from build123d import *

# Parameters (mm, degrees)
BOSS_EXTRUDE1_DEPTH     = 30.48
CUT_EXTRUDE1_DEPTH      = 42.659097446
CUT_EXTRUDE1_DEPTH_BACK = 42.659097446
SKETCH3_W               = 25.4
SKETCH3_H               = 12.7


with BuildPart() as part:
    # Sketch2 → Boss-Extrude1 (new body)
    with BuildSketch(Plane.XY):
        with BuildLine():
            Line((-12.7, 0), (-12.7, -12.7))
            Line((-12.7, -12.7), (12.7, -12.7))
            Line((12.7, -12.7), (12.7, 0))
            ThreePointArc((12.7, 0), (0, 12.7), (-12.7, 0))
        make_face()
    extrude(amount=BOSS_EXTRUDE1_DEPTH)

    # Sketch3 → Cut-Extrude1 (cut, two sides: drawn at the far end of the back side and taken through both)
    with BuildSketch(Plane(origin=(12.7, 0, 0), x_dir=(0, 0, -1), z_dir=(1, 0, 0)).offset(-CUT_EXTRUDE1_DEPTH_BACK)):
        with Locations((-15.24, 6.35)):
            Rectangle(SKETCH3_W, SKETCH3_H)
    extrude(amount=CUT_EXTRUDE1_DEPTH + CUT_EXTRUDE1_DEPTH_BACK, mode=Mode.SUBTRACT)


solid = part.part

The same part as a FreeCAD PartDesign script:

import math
import FreeCAD as App
import Part
import Sketcher

V = App.Vector
Q = App.Units.Quantity

doc = App.newDocument("Part")
body = doc.addObject("PartDesign::Body", "Body")

# Sketch on XY plane
sketch1 = doc.addObject("Sketcher::SketchObject", "Sketch")
body.addObject(sketch1)
sketch1.AttachmentSupport = (doc.XY_Plane, [""])
sketch1.MapMode = "FlatFace"
sketch1.addGeometry(Part.LineSegment(V(-13, 0, 0), V(-13, -13, 0)), False)
sketch1.addGeometry(Part.LineSegment(V(-13, -13, 0), V(13, -13, 0)), False)
sketch1.addGeometry(Part.LineSegment(V(13, -13, 0), V(13, 0, 0)), False)
sketch1.addGeometry(Part.ArcOfCircle(Part.Circle(V(0, 0, 0), V(0, 0, 1), 13), math.radians(0), math.radians(180)), False)
sketch1.addConstraint(Sketcher.Constraint("Coincident", 0, 2, 1, 1))
sketch1.addConstraint(Sketcher.Constraint("Coincident", 1, 2, 2, 1))
sketch1.addConstraint(Sketcher.Constraint("Tangent", 2, 2, 3, 1))
sketch1.addConstraint(Sketcher.Constraint("Tangent", 3, 2, 0, 1))
sketch1.addConstraint(Sketcher.Constraint("Vertical", 0))
sketch1.addConstraint(Sketcher.Constraint("Horizontal", 1))
sketch1.addConstraint(Sketcher.Constraint("Vertical", 2))
sketch1.addConstraint(Sketcher.Constraint("Coincident", 3, 3, -1, 1))
sketch1.addConstraint(Sketcher.Constraint("Radius", 3, Q("0.5 in")))
sketch1.addConstraint(Sketcher.Constraint("DistanceY", 0, 2, 0, 1, Q("0.5 in")))
pad1 = doc.addObject("PartDesign::Pad", "Pad")
body.addObject(pad1)
pad1.Profile = sketch1
pad1.Length = Q("1.2 in")

# Sketch on YZ plane
sketch2 = doc.addObject("Sketcher::SketchObject", "Sketch001")
body.addObject(sketch2)
sketch2.AttachmentSupport = (doc.YZ_Plane, [""])
sketch2.MapMode = "FlatFace"
sketch2.AttachmentOffset = App.Placement(V(0, 0, 0.5 * 25.4), App.Rotation())
sketch2.addGeometry(Part.LineSegment(V(13, 28, 0), V(0, 28, 0)), False)
sketch2.addGeometry(Part.LineSegment(V(0, 28, 0), V(0, 3, 0)), False)
sketch2.addGeometry(Part.LineSegment(V(0, 3, 0), V(13, 3, 0)), False)
sketch2.addGeometry(Part.LineSegment(V(13, 3, 0), V(13, 28, 0)), False)
sketch2.addConstraint(Sketcher.Constraint("Coincident", 0, 2, 1, 1))
sketch2.addConstraint(Sketcher.Constraint("Coincident", 1, 2, 2, 1))
sketch2.addConstraint(Sketcher.Constraint("Coincident", 2, 2, 3, 1))
sketch2.addConstraint(Sketcher.Constraint("Coincident", 3, 2, 0, 1))
sketch2.addConstraint(Sketcher.Constraint("Horizontal", 0))
sketch2.addConstraint(Sketcher.Constraint("Vertical", 1))
sketch2.addConstraint(Sketcher.Constraint("Horizontal", 2))
sketch2.addConstraint(Sketcher.Constraint("Vertical", 3))
sketch2.addConstraint(Sketcher.Constraint("PointOnObject", 0, 2, -2))
sketch2.addConstraint(Sketcher.Constraint("DistanceY", 1, 2, 1, 1, Q("1 in")))
sketch2.addConstraint(Sketcher.Constraint("DistanceX", 0, 2, 0, 1, Q("0.5 in")))
sketch2.addConstraint(Sketcher.Constraint("DistanceY", -1, 1, 0, 2, Q("1.1 in")))
pocket1 = doc.addObject("PartDesign::Pocket", "Pocket")
body.addObject(pocket1)
pocket1.Profile = sketch2
pocket1.Type = "ThroughAll"
pocket1.Midplane = True

doc.recompute()
